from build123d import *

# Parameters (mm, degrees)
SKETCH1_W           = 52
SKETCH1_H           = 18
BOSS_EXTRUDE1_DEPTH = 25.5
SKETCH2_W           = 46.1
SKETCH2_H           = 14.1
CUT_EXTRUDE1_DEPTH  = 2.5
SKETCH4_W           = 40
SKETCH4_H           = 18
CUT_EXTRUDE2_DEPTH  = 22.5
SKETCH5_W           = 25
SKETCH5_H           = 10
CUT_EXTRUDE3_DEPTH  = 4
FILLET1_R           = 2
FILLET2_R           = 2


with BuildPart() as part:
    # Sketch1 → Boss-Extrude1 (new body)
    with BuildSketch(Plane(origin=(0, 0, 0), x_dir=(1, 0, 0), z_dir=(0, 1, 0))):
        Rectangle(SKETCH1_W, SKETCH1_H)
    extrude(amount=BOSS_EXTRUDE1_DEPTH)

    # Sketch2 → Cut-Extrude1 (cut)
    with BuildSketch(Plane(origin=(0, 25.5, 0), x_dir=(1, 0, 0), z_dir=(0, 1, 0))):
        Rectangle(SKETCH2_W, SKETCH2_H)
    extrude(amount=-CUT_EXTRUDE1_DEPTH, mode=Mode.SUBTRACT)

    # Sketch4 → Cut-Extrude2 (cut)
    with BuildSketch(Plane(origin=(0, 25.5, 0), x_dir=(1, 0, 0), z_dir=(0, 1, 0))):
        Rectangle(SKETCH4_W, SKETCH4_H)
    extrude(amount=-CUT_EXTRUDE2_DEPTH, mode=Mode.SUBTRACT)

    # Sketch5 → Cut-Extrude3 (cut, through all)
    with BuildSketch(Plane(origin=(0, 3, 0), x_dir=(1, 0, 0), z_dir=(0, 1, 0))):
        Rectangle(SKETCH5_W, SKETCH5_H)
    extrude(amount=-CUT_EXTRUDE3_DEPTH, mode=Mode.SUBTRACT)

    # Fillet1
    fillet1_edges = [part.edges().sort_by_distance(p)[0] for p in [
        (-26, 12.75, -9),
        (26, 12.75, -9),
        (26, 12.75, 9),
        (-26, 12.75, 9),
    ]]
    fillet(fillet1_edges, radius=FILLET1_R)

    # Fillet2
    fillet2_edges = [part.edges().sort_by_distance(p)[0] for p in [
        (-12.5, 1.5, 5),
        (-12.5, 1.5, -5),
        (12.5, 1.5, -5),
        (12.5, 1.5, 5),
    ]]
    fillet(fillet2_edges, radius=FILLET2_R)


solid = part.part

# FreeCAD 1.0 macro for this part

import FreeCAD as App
import Part
import Sketcher


def edges_at(feature, points):
    """Names of the edges that pass closest to the given points."""
    edges = feature.Shape.Edges
    near = lambda p: min(range(len(edges)), key=lambda i: edges[i].distToShape(Part.Vertex(*p))[0])
    return sorted({f"Edge{near(p) + 1}" for p in points})

doc = App.newDocument("Part")
params = doc.addObject("Spreadsheet::Sheet", "Params")
for row, (alias, value) in enumerate([
    ("sketch1_width", "52 mm"),
    ("sketch1_height", "18 mm"),
    ("pad1_length", "25.5 mm"),
    ("sketch2_width", "46.1 mm"),
    ("sketch2_height", "14.1 mm"),
    ("pocket1_length", "2.5 mm"),
    ("sketch3_width", "40 mm"),
    ("sketch3_height", "18 mm"),
    ("pocket2_length", "22.5 mm"),
    ("sketch4_width", "25 mm"),
    ("sketch4_height", "10 mm"),
    ("fillet_radius", "2 mm"),
    ("fillet2_radius", "2 mm"),
], start=1):
    params.set(f"A{row}", alias)
    params.set(f"B{row}", "=" + value)
    params.setAlias(f"B{row}", alias)

body = doc.addObject("PartDesign::Body", "Body")

# Sketch on XZ plane
sketch1 = body.newObject("Sketcher::SketchObject", "Sketch")
sketch1.AttachmentSupport = (doc.getObject("XZ_Plane"), [""])
sketch1.MapMode = "FlatFace"
sketch1.addGeometry([
    Part.LineSegment(App.Vector(-26, -9, 0), App.Vector(-26, 9, 0)),
    Part.LineSegment(App.Vector(-26, 9, 0), App.Vector(26, 9, 0)),
    Part.LineSegment(App.Vector(26, 9, 0), App.Vector(26, -9, 0)),
    Part.LineSegment(App.Vector(26, -9, 0), App.Vector(-26, -9, 0)),
], False)
sketch1.addConstraint([
    Sketcher.Constraint("Coincident", 0, 2, 1, 1),
    Sketcher.Constraint("Coincident", 1, 2, 2, 1),
    Sketcher.Constraint("Coincident", 2, 2, 3, 1),
    Sketcher.Constraint("Coincident", 3, 2, 0, 1),
    Sketcher.Constraint("Vertical", 0),
    Sketcher.Constraint("Horizontal", 1),
    Sketcher.Constraint("Vertical", 2),
    Sketcher.Constraint("Horizontal", 3),
    Sketcher.Constraint("Symmetric", 0, 2, 2, 2, -1, 1),
    Sketcher.Constraint("DistanceX", 1, 1, 1, 2, 52.0),
    Sketcher.Constraint("DistanceY", 0, 1, 0, 2, 18.0),
])
sketch1.setExpression("Constraints[9]", "Params.sketch1_width")
sketch1.setExpression("Constraints[10]", "Params.sketch1_height")
pad1 = body.newObject("PartDesign::Pad", "Pad")
pad1.Profile = sketch1
pad1.setExpression("Length", "Params.pad1_length")
pad1.Reversed = True

# Sketch on XZ plane
sketch2 = body.newObject("Sketcher::SketchObject", "Sketch001")
sketch2.AttachmentSupport = (doc.getObject("XZ_Plane"), [""])
sketch2.MapMode = "FlatFace"
sketch2.AttachmentOffset = App.Placement(App.Vector(0, 0, -25.5), App.Rotation())
sketch2.addGeometry([
    Part.LineSegment(App.Vector(-23, -7, 0), App.Vector(-23, 7, 0)),
    Part.LineSegment(App.Vector(-23, 7, 0), App.Vector(23, 7, 0)),
    Part.LineSegment(App.Vector(23, 7, 0), App.Vector(23, -7, 0)),
    Part.LineSegment(App.Vector(23, -7, 0), App.Vector(-23, -7, 0)),
], False)
sketch2.addConstraint([
    Sketcher.Constraint("Coincident", 0, 2, 1, 1),
    Sketcher.Constraint("Coincident", 1, 2, 2, 1),
    Sketcher.Constraint("Coincident", 2, 2, 3, 1),
    Sketcher.Constraint("Coincident", 3, 2, 0, 1),
    Sketcher.Constraint("Vertical", 0),
    Sketcher.Constraint("Horizontal", 1),
    Sketcher.Constraint("Vertical", 2),
    Sketcher.Constraint("Horizontal", 3),
    Sketcher.Constraint("Symmetric", 0, 2, 2, 2, -1, 1),
    Sketcher.Constraint("DistanceX", 1, 1, 1, 2, 46.1),
    Sketcher.Constraint("DistanceY", 0, 1, 0, 2, 14.1),
])
sketch2.setExpression("Constraints[9]", "Params.sketch2_width")
sketch2.setExpression("Constraints[10]", "Params.sketch2_height")
pocket1 = body.newObject("PartDesign::Pocket", "Pocket")
pocket1.Profile = sketch2
pocket1.setExpression("Length", "Params.pocket1_length")
pocket1.Reversed = True

# Sketch on XZ plane
sketch3 = body.newObject("Sketcher::SketchObject", "Sketch002")
sketch3.AttachmentSupport = (doc.getObject("XZ_Plane"), [""])
sketch3.MapMode = "FlatFace"
sketch3.AttachmentOffset = App.Placement(App.Vector(0, 0, -25.5), App.Rotation())
sketch3.addGeometry([
    Part.LineSegment(App.Vector(-20, -9, 0), App.Vector(-20, 9, 0)),
    Part.LineSegment(App.Vector(-20, 9, 0), App.Vector(20, 9, 0)),
    Part.LineSegment(App.Vector(20, 9, 0), App.Vector(20, -9, 0)),
    Part.LineSegment(App.Vector(20, -9, 0), App.Vector(-20, -9, 0)),
], False)
sketch3.addConstraint([
    Sketcher.Constraint("Coincident", 0, 2, 1, 1),
    Sketcher.Constraint("Coincident", 1, 2, 2, 1),
    Sketcher.Constraint("Coincident", 2, 2, 3, 1),
    Sketcher.Constraint("Coincident", 3, 2, 0, 1),
    Sketcher.Constraint("Vertical", 0),
    Sketcher.Constraint("Horizontal", 1),
    Sketcher.Constraint("Vertical", 2),
    Sketcher.Constraint("Horizontal", 3),
    Sketcher.Constraint("Symmetric", 0, 2, 2, 2, -1, 1),
    Sketcher.Constraint("DistanceX", 1, 1, 1, 2, 40.0),
    Sketcher.Constraint("DistanceY", 0, 1, 0, 2, 18.0),
])
sketch3.setExpression("Constraints[9]", "Params.sketch3_width")
sketch3.setExpression("Constraints[10]", "Params.sketch3_height")
pocket2 = body.newObject("PartDesign::Pocket", "Pocket001")
pocket2.Profile = sketch3
pocket2.setExpression("Length", "Params.pocket2_length")
pocket2.Reversed = True

# Sketch on XZ plane
sketch4 = body.newObject("Sketcher::SketchObject", "Sketch003")
sketch4.AttachmentSupport = (doc.getObject("XZ_Plane"), [""])
sketch4.MapMode = "FlatFace"
sketch4.AttachmentOffset = App.Placement(App.Vector(0, 0, -3), App.Rotation())
sketch4.addGeometry([
    Part.LineSegment(App.Vector(-12, -5, 0), App.Vector(-12, 5, 0)),
    Part.LineSegment(App.Vector(-12, 5, 0), App.Vector(12, 5, 0)),
    Part.LineSegment(App.Vector(12, 5, 0), App.Vector(12, -5, 0)),
    Part.LineSegment(App.Vector(12, -5, 0), App.Vector(-12, -5, 0)),
], False)
sketch4.addConstraint([
    Sketcher.Constraint("Coincident", 0, 2, 1, 1),
    Sketcher.Constraint("Coincident", 1, 2, 2, 1),
    Sketcher.Constraint("Coincident", 2, 2, 3, 1),
    Sketcher.Constraint("Coincident", 3, 2, 0, 1),
    Sketcher.Constraint("Vertical", 0),
    Sketcher.Constraint("Horizontal", 1),
    Sketcher.Constraint("Vertical", 2),
    Sketcher.Constraint("Horizontal", 3),
    Sketcher.Constraint("Symmetric", 0, 2, 2, 2, -1, 1),
    Sketcher.Constraint("DistanceX", 1, 1, 1, 2, 25.0),
    Sketcher.Constraint("DistanceY", 0, 1, 0, 2, 10.0),
])
sketch4.setExpression("Constraints[9]", "Params.sketch4_width")
sketch4.setExpression("Constraints[10]", "Params.sketch4_height")
pocket3 = body.newObject("PartDesign::Pocket", "Pocket002")
pocket3.Profile = sketch4
pocket3.Type = "ThroughAll"
pocket3.Reversed = True
doc.recompute()

fillet = body.newObject("PartDesign::Fillet", "Fillet")
fillet.Base = (pocket3, edges_at(pocket3, [
    (-26, 12.75, -9),
    (26, 12.75, -9),
    (26, 12.75, 9),
    (-26, 12.75, 9),
]))
fillet.setExpression("Radius", "Params.fillet_radius")
doc.recompute()

fillet2 = body.newObject("PartDesign::Fillet", "Fillet001")
fillet2.Base = (fillet, edges_at(fillet, [
    (-12.5, 1.5, 5),
    (-12.5, 1.5, -5),
    (12.5, 1.5, -5),
    (12.5, 1.5, 5),
]))
fillet2.setExpression("Radius", "Params.fillet2_radius")

doc.recompute()
